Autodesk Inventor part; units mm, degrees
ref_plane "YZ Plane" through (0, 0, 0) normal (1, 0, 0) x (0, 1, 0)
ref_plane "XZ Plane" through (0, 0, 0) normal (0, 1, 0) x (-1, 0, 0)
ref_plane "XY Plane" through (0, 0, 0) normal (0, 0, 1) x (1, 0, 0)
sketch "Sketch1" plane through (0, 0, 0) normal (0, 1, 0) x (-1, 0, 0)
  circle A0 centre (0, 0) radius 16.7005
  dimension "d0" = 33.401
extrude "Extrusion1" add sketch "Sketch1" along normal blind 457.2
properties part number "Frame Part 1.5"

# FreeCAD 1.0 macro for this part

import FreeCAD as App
import Part
import Sketcher
Q = App.Units.Quantity

doc = App.newDocument("Part")
body = doc.addObject("PartDesign::Body", "Body")

sketch1 = body.newObject("Sketcher::SketchObject", "Sketch")
sketch1.AttachmentSupport = (doc.getObject("XZ_Plane"), [""])
sketch1.MapMode = "FlatFace"
sketch1.addGeometry(Part.Circle(App.Vector(0, 0, 0), App.Vector(0, 0, 1), 17), False)
sketch1.addConstraint(Sketcher.Constraint("Coincident", 0, 3, -1, 1))
sketch1.addConstraint(Sketcher.Constraint("Diameter", 0, Q("1.315 in")))
pad1 = body.newObject("PartDesign::Pad", "Pad")
pad1.Profile = sketch1
pad1.Length = Q("18 in")
pad1.Reversed = True

doc.recompute()
